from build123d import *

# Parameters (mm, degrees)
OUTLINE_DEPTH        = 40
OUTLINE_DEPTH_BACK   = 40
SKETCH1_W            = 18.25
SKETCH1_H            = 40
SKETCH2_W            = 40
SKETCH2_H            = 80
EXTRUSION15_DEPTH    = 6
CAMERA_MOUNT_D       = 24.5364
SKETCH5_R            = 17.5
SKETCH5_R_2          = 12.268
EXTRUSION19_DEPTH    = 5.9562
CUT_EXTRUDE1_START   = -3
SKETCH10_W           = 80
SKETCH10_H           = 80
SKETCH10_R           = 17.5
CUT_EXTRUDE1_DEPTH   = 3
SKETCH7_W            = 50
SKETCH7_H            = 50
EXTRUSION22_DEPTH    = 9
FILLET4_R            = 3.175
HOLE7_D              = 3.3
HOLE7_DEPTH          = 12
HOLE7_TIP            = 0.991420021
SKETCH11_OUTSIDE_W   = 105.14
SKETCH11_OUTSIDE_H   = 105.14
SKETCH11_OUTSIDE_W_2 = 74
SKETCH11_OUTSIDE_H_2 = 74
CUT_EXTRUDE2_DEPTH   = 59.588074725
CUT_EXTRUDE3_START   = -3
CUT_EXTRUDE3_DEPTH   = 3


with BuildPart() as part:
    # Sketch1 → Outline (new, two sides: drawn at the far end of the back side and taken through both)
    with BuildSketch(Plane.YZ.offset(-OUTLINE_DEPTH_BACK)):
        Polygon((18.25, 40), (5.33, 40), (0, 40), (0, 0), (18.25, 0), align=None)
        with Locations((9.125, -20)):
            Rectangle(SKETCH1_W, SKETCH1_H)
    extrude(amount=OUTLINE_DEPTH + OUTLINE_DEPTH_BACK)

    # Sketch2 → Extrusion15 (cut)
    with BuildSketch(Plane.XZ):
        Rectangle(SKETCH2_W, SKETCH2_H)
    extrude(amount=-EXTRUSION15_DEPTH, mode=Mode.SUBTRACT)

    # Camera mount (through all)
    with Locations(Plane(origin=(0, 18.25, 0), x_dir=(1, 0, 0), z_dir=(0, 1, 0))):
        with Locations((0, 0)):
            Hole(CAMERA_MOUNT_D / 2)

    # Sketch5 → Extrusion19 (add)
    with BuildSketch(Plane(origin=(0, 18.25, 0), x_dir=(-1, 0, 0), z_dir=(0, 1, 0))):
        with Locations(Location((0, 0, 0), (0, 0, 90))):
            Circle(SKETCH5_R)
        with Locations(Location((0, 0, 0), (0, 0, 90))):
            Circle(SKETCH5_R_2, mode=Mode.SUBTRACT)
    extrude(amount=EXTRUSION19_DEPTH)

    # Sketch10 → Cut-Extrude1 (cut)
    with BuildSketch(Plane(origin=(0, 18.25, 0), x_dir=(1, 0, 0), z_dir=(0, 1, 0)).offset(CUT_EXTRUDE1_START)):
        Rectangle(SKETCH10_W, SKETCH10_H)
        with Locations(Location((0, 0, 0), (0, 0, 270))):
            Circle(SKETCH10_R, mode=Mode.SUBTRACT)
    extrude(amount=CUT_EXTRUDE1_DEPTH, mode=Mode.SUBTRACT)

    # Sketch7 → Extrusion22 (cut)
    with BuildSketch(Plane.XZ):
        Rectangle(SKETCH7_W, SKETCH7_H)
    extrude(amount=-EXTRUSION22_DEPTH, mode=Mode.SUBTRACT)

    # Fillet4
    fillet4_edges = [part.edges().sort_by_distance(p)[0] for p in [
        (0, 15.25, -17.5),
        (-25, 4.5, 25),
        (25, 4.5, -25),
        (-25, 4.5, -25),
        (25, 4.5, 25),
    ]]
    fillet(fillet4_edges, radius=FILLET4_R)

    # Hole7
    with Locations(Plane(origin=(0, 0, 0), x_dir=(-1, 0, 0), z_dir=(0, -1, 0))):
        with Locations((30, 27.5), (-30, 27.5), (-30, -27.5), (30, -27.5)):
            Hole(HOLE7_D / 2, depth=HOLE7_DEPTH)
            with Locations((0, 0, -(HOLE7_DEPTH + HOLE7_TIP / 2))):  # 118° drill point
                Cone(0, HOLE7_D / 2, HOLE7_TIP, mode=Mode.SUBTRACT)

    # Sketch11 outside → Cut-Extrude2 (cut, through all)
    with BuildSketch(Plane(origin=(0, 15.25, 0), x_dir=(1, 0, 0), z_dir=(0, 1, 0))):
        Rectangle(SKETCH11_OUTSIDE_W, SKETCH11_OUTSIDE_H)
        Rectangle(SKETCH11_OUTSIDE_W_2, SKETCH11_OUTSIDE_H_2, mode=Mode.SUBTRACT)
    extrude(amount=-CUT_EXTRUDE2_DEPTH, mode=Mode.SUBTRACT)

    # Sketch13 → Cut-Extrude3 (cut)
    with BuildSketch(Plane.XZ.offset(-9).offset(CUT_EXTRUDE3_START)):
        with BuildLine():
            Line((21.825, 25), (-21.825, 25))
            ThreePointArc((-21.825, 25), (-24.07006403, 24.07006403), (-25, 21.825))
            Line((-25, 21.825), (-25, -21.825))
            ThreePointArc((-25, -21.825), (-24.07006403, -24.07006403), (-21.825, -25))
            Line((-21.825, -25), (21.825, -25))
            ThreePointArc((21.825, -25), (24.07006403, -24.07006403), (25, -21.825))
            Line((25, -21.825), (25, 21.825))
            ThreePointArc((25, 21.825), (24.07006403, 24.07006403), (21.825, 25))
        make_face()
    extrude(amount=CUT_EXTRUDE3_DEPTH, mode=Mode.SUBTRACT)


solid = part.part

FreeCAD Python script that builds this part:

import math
import FreeCAD as App
import Part
import Sketcher

V = App.Vector


def edges_at(feature, points):
    """Names of the edges that pass closest to the given points."""
    edges = feature.Shape.Edges
    near = lambda p: min(range(len(edges)), key=lambda i: edges[i].distToShape(Part.Vertex(*p))[0])
    return sorted({f"Edge{near(p) + 1}" for p in points})

doc = App.newDocument("Part")
params = doc.addObject("Spreadsheet::Sheet", "Params")
for row, (alias, value) in enumerate([
    ("sketch1_height", "80 mm"),
    ("sketch1_width", "18.25 mm"),
    ("pad1_length", "40 mm"),
    ("pad1_length2", "40 mm"),
    ("sketch2_width", "40 mm"),
    ("sketch2_height", "80 mm"),
    ("pocket1_length", "6 mm"),
    ("hole_diameter", "24.5364 mm"),
    ("sketch4_diameter", "35 mm"),
    ("pad2_length", "5.9562 mm"),
    ("sketch5_diameter", "35 mm"),
    ("sketch5_width", "80 mm"),
    ("pocket2_length", "3 mm"),
    ("sketch6_width", "50 mm"),
    ("pocket3_length", "9 mm"),
    ("fillet_radius", "3.175 mm"),
    ("sketch7_diameter", "3.3 mm"),
    ("hole2_diameter", "3.3 mm"),
    ("hole2_depth", "12 mm"),
    ("sketch8_width", "74 mm"),
    ("sketch8_width2", "105.14 mm"),
    ("pocket5_length", "3 mm"),
], start=1):
    params.set(f"A{row}", alias)
    params.set(f"B{row}", "=" + value)
    params.setAlias(f"B{row}", alias)

body = doc.addObject("PartDesign::Body", "Body")

# Sketch on YZ plane
sketch1 = body.newObject("Sketcher::SketchObject", "Sketch")
sketch1.AttachmentSupport = (doc.getObject("YZ_Plane"), [""])
sketch1.MapMode = "FlatFace"
sketch1.addGeometry([
    Part.LineSegment(V(18.25, 40, 0), V(0, 40, 0)),
    Part.LineSegment(V(0, 40, 0), V(0, -40, 0)),
    Part.LineSegment(V(0, -40, 0), V(18.25, -40, 0)),
    Part.LineSegment(V(18.25, -40, 0), V(18.25, 40, 0)),
], False)
sketch1.addConstraint([
    Sketcher.Constraint("Coincident", 0, 2, 1, 1),
    Sketcher.Constraint("Coincident", 1, 2, 2, 1),
    Sketcher.Constraint("Coincident", 2, 2, 3, 1),
    Sketcher.Constraint("Coincident", 3, 2, 0, 1),
    Sketcher.Constraint("Horizontal", 0),
    Sketcher.Constraint("Vertical", 1),
    Sketcher.Constraint("Horizontal", 2),
    Sketcher.Constraint("Vertical", 3),
    Sketcher.Constraint("Symmetric", 0, 2, 1, 2, -1, 1),
    Sketcher.Constraint("DistanceY", 1, 2, 1, 1, 80.0),
    Sketcher.Constraint("DistanceX", 0, 2, 0, 1, 18.25),
])
sketch1.setExpression("Constraints[9]", "Params.sketch1_height")
sketch1.setExpression("Constraints[10]", "Params.sketch1_width")
pad1 = body.newObject("PartDesign::Pad", "Pad")
pad1.Profile = sketch1
pad1.Type = "TwoLengths"
pad1.setExpression("Length", "Params.pad1_length")
pad1.setExpression("Length2", "Params.pad1_length2")

# Sketch on XZ plane
sketch2 = body.newObject("Sketcher::SketchObject", "Sketch001")
sketch2.AttachmentSupport = (doc.getObject("XZ_Plane"), [""])
sketch2.MapMode = "FlatFace"
sketch2.addGeometry([
    Part.LineSegment(V(-20, 40, 0), V(-20, -40, 0)),
    Part.LineSegment(V(-20, -40, 0), V(20, -40, 0)),
    Part.LineSegment(V(20, -40, 0), V(20, 40, 0)),
    Part.LineSegment(V(20, 40, 0), V(-20, 40, 0)),
], False)
sketch2.addConstraint([
    Sketcher.Constraint("Coincident", 0, 2, 1, 1),
    Sketcher.Constraint("Coincident", 1, 2, 2, 1),
    Sketcher.Constraint("Coincident", 2, 2, 3, 1),
    Sketcher.Constraint("Coincident", 3, 2, 0, 1),
    Sketcher.Constraint("Vertical", 0),
    Sketcher.Constraint("Horizontal", 1),
    Sketcher.Constraint("Vertical", 2),
    Sketcher.Constraint("Horizontal", 3),
    Sketcher.Constraint("Symmetric", 0, 2, 2, 2, -1, 1),
    Sketcher.Constraint("DistanceX", 1, 1, 1, 2, 40.0),
    Sketcher.Constraint("DistanceY", 0, 2, 0, 1, 80.0),
])
sketch2.setExpression("Constraints[9]", "Params.sketch2_width")
sketch2.setExpression("Constraints[10]", "Params.sketch2_height")
pocket1 = body.newObject("PartDesign::Pocket", "Pocket")
pocket1.Profile = sketch2
pocket1.setExpression("Length", "Params.pocket1_length")

# Sketch on XZ plane
sketch3 = body.newObject("Sketcher::SketchObject", "Sketch002")
sketch3.AttachmentSupport = (doc.getObject("XZ_Plane"), [""])
sketch3.MapMode = "FlatFace"
sketch3.AttachmentOffset = App.Placement(V(0, 0, -18.25), App.Rotation())
sketch3.addGeometry(Part.Circle(V(0, 0, 0), V(0, 0, 1), 12.2682), False)
sketch3.addConstraint([
    Sketcher.Constraint("Coincident", 0, 3, -1, 1),
    Sketcher.Constraint("Diameter", 0, 24.5364),
])
doc.recompute()
hole = body.newObject("PartDesign::Hole", "Hole")
hole.Profile = sketch3
hole.ThreadType = "None"
hole.setExpression("Diameter", "Params.hole_diameter")
hole.DepthType = "ThroughAll"
hole.Reversed = True

# Sketch on XZ plane
sketch4 = body.newObject("Sketcher::SketchObject", "Sketch003")
sketch4.AttachmentSupport = (doc.getObject("XZ_Plane"), [""])
sketch4.MapMode = "FlatFace"
sketch4.AttachmentOffset = App.Placement(V(0, 0, -18.25), App.Rotation())
sketch4.addGeometry([
    Part.Circle(V(0, 0, 0), V(0, 0, 1), 17.5),
    Part.Circle(V(0, 0, 0), V(0, 0, 1), 12.268),
], False)
sketch4.addConstraint([
    Sketcher.Constraint("Coincident", 0, 3, -1, 1),
    Sketcher.Constraint("Coincident", 1, 3, -1, 1),
    Sketcher.Constraint("Diameter", 0, 35.0),
    Sketcher.Constraint("Diameter", 1, 24.536),
])
sketch4.setExpression("Constraints[2]", "Params.sketch4_diameter")
pad2 = body.newObject("PartDesign::Pad", "Pad001")
pad2.Profile = sketch4
pad2.setExpression("Length", "Params.pad2_length")
pad2.Reversed = True

# Sketch on XZ plane
sketch5 = body.newObject("Sketcher::SketchObject", "Sketch004")
sketch5.AttachmentSupport = (doc.getObject("XZ_Plane"), [""])
sketch5.MapMode = "FlatFace"
sketch5.AttachmentOffset = App.Placement(V(0, 0, -15.25), App.Rotation())
sketch5.addGeometry([
    Part.LineSegment(V(-40, -40, 0), V(-40, 40, 0)),  # 0
    Part.LineSegment(V(-40, 40, 0), V(40, 40, 0)),  # 1
    Part.LineSegment(V(40, 40, 0), V(40, -40, 0)),  # 2
    Part.LineSegment(V(40, -40, 0), V(-40, -40, 0)),  # 3
    Part.Circle(V(0, 0, 0), V(0, 0, 1), 17.5),  # 4
], False)
sketch5.addConstraint([
    Sketcher.Constraint("Coincident", 0, 2, 1, 1),
    Sketcher.Constraint("Coincident", 1, 2, 2, 1),
    Sketcher.Constraint("Coincident", 2, 2, 3, 1),
    Sketcher.Constraint("Coincident", 3, 2, 0, 1),
    Sketcher.Constraint("Vertical", 0),
    Sketcher.Constraint("Horizontal", 1),
    Sketcher.Constraint("Vertical", 2),
    Sketcher.Constraint("Horizontal", 3),
    Sketcher.Constraint("Coincident", 4, 3, -1, 1),
    Sketcher.Constraint("Symmetric", 0, 2, 2, 2, -1, 1),
    Sketcher.Constraint("Equal", 3, 0),
    Sketcher.Constraint("Diameter", 4, 35.0),
    Sketcher.Constraint("DistanceX", 1, 1, 1, 2, 80.0),
])
sketch5.setExpression("Constraints[11]", "Params.sketch5_diameter")
sketch5.setExpression("Constraints[12]", "Params.sketch5_width")
pocket2 = body.newObject("PartDesign::Pocket", "Pocket001")
pocket2.Profile = sketch5
pocket2.setExpression("Length", "Params.pocket2_length")

# Sketch on XZ plane
sketch6 = body.newObject("Sketcher::SketchObject", "Sketch005")
sketch6.AttachmentSupport = (doc.getObject("XZ_Plane"), [""])
sketch6.MapMode = "FlatFace"
sketch6.addGeometry([
    Part.LineSegment(V(-25, 25, 0), V(-25, -25, 0)),
    Part.LineSegment(V(-25, -25, 0), V(25, -25, 0)),
    Part.LineSegment(V(25, -25, 0), V(25, 25, 0)),
    Part.LineSegment(V(25, 25, 0), V(-25, 25, 0)),
], False)
sketch6.addConstraint([
    Sketcher.Constraint("Coincident", 0, 2, 1, 1),
    Sketcher.Constraint("Coincident", 1, 2, 2, 1),
    Sketcher.Constraint("Coincident", 2, 2, 3, 1),
    Sketcher.Constraint("Coincident", 3, 2, 0, 1),
    Sketcher.Constraint("Vertical", 0),
    Sketcher.Constraint("Horizontal", 1),
    Sketcher.Constraint("Vertical", 2),
    Sketcher.Constraint("Horizontal", 3),
    Sketcher.Constraint("Symmetric", 0, 2, 2, 2, -1, 1),
    Sketcher.Constraint("Equal", 3, 0),
    Sketcher.Constraint("DistanceX", 1, 1, 1, 2, 50.0),
])
sketch6.setExpression("Constraints[10]", "Params.sketch6_width")
pocket3 = body.newObject("PartDesign::Pocket", "Pocket002")
pocket3.Profile = sketch6
pocket3.setExpression("Length", "Params.pocket3_length")
doc.recompute()

fillet = body.newObject("PartDesign::Fillet", "Fillet")
fillet.Base = (pocket3, edges_at(pocket3, [
    (0, 15.25, -17.5),
    (-25, 4.5, 25),
    (25, 4.5, -25),
    (-25, 4.5, -25),
    (25, 4.5, 25),
]))
fillet.setExpression("Radius", "Params.fillet_radius")

# Sketch on XZ plane
sketch7 = body.newObject("Sketcher::SketchObject", "Sketch006")
sketch7.AttachmentSupport = (doc.getObject("XZ_Plane"), [""])
sketch7.MapMode = "FlatFace"
sketch7.addGeometry([
    Part.Circle(V(-30, -27.5, 0), V(0, 0, 1), 1.65),
    Part.Circle(V(30, -27.5, 0), V(0, 0, 1), 1.65),
    Part.Circle(V(30, 27.5, 0), V(0, 0, 1), 1.65),
    Part.Circle(V(-30, 27.5, 0), V(0, 0, 1), 1.65),
], False)
sketch7.addConstraint([
    Sketcher.Constraint("Equal", 0, 1),
    Sketcher.Constraint("Equal", 1, 2),
    Sketcher.Constraint("Equal", 2, 3),
    Sketcher.Constraint("Symmetric", 0, 3, 2, 3, -1, 1),
    Sketcher.Constraint("Symmetric", 1, 3, 3, 3, -1, 1),
    Sketcher.Constraint("Symmetric", 0, 3, 1, 3, -2),
    Sketcher.Constraint("Diameter", 0, 3.3),
    Sketcher.Constraint("DistanceX", 0, 3, -1, 1, 30.0),
    Sketcher.Constraint("DistanceY", 1, 3, 2, 3, 55.0),
])
sketch7.setExpression("Constraints[6]", "Params.sketch7_diameter")
doc.recompute()
hole2 = body.newObject("PartDesign::Hole", "Hole001")
hole2.Profile = sketch7
hole2.ThreadType = "None"
hole2.setExpression("Diameter", "Params.hole2_diameter")
hole2.DepthType = "Dimension"
hole2.setExpression("Depth", "Params.hole2_depth")
hole2.DrillPoint = "Angled"
hole2.DrillPointAngle = 118

# Sketch on XZ plane
sketch8 = body.newObject("Sketcher::SketchObject", "Sketch007")
sketch8.AttachmentSupport = (doc.getObject("XZ_Plane"), [""])
sketch8.MapMode = "FlatFace"
sketch8.AttachmentOffset = App.Placement(V(0, 0, -15.25), App.Rotation())
sketch8.addGeometry([
    Part.LineSegment(V(-52.57, -52.57, 0), V(-52.57, 52.57, 0)),  # 0
    Part.LineSegment(V(-52.57, 52.57, 0), V(52.57, 52.57, 0)),  # 1
    Part.LineSegment(V(52.57, 52.57, 0), V(52.57, -52.57, 0)),  # 2
    Part.LineSegment(V(52.57, -52.57, 0), V(-52.57, -52.57, 0)),  # 3
    Part.LineSegment(V(37, 37, 0), V(-37, 37, 0)),  # 4
    Part.LineSegment(V(-37, 37, 0), V(-37, -37, 0)),  # 5
    Part.LineSegment(V(-37, -37, 0), V(37, -37, 0)),  # 6
    Part.LineSegment(V(37, -37, 0), V(37, 37, 0)),  # 7
], False)
sketch8.addConstraint([
    Sketcher.Constraint("Coincident", 0, 2, 1, 1),
    Sketcher.Constraint("Coincident", 1, 2, 2, 1),
    Sketcher.Constraint("Coincident", 2, 2, 3, 1),
    Sketcher.Constraint("Coincident", 3, 2, 0, 1),
    Sketcher.Constraint("Coincident", 4, 2, 5, 1),
    Sketcher.Constraint("Coincident", 5, 2, 6, 1),
    Sketcher.Constraint("Coincident", 6, 2, 7, 1),
    Sketcher.Constraint("Coincident", 7, 2, 4, 1),
    Sketcher.Constraint("Vertical", 0),
    Sketcher.Constraint("Horizontal", 1),
    Sketcher.Constraint("Vertical", 2),
    Sketcher.Constraint("Horizontal", 3),
    Sketcher.Constraint("Horizontal", 4),
    Sketcher.Constraint("Vertical", 5),
    Sketcher.Constraint("Horizontal", 6),
    Sketcher.Constraint("Vertical", 7),
    Sketcher.Constraint("Symmetric", 0, 2, 2, 2, -1, 1),
    Sketcher.Constraint("Symmetric", 4, 2, 6, 2, -1, 1),
    Sketcher.Constraint("Equal", 3, 0),
    Sketcher.Constraint("Equal", 6, 5),
    Sketcher.Constraint("DistanceX", 4, 2, 4, 1, 74.0),
    Sketcher.Constraint("DistanceX", 1, 1, 1, 2, 105.14),
])
sketch8.setExpression("Constraints[20]", "Params.sketch8_width")
sketch8.setExpression("Constraints[21]", "Params.sketch8_width2")
pocket4 = body.newObject("PartDesign::Pocket", "Pocket003")
pocket4.Profile = sketch8
pocket4.Type = "ThroughAll"
pocket4.Reversed = True

# Sketch on XZ plane
sketch9 = body.newObject("Sketcher::SketchObject", "Sketch008")
sketch9.AttachmentSupport = (doc.getObject("XZ_Plane"), [""])
sketch9.MapMode = "FlatFace"
sketch9.AttachmentOffset = App.Placement(V(0, 0, -12), App.Rotation())
sketch9.addGeometry([
    Part.LineSegment(V(21.825, 25, 0), V(-21.825, 25, 0)),  # 0
    Part.ArcOfCircle(Part.Circle(V(-21.825, 21.825, 0), V(0, 0, 1), 3.175), math.radians(90), math.radians(180)),  # 1
    Part.LineSegment(V(-25, 21.825, 0), V(-25, -21.825, 0)),  # 2
    Part.ArcOfCircle(Part.Circle(V(-21.825, -21.825, 0), V(0, 0, 1), 3.175), math.radians(-180), math.radians(-90)),  # 3
    Part.LineSegment(V(-21.825, -25, 0), V(21.825, -25, 0)),  # 4
    Part.ArcOfCircle(Part.Circle(V(21.825, -21.825, 0), V(0, 0, 1), 3.175), math.radians(-90), math.radians(0)),  # 5
    Part.LineSegment(V(25, -21.825, 0), V(25, 21.825, 0)),  # 6
    Part.ArcOfCircle(Part.Circle(V(21.825, 21.825, 0), V(0, 0, 1), 3.175), math.radians(0), math.radians(90)),  # 7
], False)
sketch9.addConstraint([
    Sketcher.Constraint("Tangent", 0, 2, 1, 1),
    Sketcher.Constraint("Tangent", 1, 2, 2, 1),
    Sketcher.Constraint("Tangent", 2, 2, 3, 1),
    Sketcher.Constraint("Tangent", 3, 2, 4, 1),
    Sketcher.Constraint("Tangent", 4, 2, 5, 1),
    Sketcher.Constraint("Tangent", 5, 2, 6, 1),
    Sketcher.Constraint("Tangent", 6, 2, 7, 1),
    Sketcher.Constraint("Tangent", 7, 2, 0, 1),
    Sketcher.Constraint("Horizontal", 0),
    Sketcher.Constraint("Vertical", 2),
    Sketcher.Constraint("Horizontal", 4),
    Sketcher.Constraint("Vertical", 6),
    Sketcher.Constraint("Equal", 1, 3),
    Sketcher.Constraint("Equal", 3, 5),
    Sketcher.Constraint("Equal", 5, 7),
    Sketcher.Constraint("Symmetric", 1, 3, 5, 3, -1, 1),
    Sketcher.Constraint("Equal", 4, 2),
    Sketcher.Constraint("DistanceY", -1, 1, 0, 2, 25.0),
    Sketcher.Constraint("Radius", 1, 3.175),
])
pocket5 = body.newObject("PartDesign::Pocket", "Pocket004")
pocket5.Profile = sketch9
pocket5.setExpression("Length", "Params.pocket5_length")
pocket5.Reversed = True

doc.recompute()
